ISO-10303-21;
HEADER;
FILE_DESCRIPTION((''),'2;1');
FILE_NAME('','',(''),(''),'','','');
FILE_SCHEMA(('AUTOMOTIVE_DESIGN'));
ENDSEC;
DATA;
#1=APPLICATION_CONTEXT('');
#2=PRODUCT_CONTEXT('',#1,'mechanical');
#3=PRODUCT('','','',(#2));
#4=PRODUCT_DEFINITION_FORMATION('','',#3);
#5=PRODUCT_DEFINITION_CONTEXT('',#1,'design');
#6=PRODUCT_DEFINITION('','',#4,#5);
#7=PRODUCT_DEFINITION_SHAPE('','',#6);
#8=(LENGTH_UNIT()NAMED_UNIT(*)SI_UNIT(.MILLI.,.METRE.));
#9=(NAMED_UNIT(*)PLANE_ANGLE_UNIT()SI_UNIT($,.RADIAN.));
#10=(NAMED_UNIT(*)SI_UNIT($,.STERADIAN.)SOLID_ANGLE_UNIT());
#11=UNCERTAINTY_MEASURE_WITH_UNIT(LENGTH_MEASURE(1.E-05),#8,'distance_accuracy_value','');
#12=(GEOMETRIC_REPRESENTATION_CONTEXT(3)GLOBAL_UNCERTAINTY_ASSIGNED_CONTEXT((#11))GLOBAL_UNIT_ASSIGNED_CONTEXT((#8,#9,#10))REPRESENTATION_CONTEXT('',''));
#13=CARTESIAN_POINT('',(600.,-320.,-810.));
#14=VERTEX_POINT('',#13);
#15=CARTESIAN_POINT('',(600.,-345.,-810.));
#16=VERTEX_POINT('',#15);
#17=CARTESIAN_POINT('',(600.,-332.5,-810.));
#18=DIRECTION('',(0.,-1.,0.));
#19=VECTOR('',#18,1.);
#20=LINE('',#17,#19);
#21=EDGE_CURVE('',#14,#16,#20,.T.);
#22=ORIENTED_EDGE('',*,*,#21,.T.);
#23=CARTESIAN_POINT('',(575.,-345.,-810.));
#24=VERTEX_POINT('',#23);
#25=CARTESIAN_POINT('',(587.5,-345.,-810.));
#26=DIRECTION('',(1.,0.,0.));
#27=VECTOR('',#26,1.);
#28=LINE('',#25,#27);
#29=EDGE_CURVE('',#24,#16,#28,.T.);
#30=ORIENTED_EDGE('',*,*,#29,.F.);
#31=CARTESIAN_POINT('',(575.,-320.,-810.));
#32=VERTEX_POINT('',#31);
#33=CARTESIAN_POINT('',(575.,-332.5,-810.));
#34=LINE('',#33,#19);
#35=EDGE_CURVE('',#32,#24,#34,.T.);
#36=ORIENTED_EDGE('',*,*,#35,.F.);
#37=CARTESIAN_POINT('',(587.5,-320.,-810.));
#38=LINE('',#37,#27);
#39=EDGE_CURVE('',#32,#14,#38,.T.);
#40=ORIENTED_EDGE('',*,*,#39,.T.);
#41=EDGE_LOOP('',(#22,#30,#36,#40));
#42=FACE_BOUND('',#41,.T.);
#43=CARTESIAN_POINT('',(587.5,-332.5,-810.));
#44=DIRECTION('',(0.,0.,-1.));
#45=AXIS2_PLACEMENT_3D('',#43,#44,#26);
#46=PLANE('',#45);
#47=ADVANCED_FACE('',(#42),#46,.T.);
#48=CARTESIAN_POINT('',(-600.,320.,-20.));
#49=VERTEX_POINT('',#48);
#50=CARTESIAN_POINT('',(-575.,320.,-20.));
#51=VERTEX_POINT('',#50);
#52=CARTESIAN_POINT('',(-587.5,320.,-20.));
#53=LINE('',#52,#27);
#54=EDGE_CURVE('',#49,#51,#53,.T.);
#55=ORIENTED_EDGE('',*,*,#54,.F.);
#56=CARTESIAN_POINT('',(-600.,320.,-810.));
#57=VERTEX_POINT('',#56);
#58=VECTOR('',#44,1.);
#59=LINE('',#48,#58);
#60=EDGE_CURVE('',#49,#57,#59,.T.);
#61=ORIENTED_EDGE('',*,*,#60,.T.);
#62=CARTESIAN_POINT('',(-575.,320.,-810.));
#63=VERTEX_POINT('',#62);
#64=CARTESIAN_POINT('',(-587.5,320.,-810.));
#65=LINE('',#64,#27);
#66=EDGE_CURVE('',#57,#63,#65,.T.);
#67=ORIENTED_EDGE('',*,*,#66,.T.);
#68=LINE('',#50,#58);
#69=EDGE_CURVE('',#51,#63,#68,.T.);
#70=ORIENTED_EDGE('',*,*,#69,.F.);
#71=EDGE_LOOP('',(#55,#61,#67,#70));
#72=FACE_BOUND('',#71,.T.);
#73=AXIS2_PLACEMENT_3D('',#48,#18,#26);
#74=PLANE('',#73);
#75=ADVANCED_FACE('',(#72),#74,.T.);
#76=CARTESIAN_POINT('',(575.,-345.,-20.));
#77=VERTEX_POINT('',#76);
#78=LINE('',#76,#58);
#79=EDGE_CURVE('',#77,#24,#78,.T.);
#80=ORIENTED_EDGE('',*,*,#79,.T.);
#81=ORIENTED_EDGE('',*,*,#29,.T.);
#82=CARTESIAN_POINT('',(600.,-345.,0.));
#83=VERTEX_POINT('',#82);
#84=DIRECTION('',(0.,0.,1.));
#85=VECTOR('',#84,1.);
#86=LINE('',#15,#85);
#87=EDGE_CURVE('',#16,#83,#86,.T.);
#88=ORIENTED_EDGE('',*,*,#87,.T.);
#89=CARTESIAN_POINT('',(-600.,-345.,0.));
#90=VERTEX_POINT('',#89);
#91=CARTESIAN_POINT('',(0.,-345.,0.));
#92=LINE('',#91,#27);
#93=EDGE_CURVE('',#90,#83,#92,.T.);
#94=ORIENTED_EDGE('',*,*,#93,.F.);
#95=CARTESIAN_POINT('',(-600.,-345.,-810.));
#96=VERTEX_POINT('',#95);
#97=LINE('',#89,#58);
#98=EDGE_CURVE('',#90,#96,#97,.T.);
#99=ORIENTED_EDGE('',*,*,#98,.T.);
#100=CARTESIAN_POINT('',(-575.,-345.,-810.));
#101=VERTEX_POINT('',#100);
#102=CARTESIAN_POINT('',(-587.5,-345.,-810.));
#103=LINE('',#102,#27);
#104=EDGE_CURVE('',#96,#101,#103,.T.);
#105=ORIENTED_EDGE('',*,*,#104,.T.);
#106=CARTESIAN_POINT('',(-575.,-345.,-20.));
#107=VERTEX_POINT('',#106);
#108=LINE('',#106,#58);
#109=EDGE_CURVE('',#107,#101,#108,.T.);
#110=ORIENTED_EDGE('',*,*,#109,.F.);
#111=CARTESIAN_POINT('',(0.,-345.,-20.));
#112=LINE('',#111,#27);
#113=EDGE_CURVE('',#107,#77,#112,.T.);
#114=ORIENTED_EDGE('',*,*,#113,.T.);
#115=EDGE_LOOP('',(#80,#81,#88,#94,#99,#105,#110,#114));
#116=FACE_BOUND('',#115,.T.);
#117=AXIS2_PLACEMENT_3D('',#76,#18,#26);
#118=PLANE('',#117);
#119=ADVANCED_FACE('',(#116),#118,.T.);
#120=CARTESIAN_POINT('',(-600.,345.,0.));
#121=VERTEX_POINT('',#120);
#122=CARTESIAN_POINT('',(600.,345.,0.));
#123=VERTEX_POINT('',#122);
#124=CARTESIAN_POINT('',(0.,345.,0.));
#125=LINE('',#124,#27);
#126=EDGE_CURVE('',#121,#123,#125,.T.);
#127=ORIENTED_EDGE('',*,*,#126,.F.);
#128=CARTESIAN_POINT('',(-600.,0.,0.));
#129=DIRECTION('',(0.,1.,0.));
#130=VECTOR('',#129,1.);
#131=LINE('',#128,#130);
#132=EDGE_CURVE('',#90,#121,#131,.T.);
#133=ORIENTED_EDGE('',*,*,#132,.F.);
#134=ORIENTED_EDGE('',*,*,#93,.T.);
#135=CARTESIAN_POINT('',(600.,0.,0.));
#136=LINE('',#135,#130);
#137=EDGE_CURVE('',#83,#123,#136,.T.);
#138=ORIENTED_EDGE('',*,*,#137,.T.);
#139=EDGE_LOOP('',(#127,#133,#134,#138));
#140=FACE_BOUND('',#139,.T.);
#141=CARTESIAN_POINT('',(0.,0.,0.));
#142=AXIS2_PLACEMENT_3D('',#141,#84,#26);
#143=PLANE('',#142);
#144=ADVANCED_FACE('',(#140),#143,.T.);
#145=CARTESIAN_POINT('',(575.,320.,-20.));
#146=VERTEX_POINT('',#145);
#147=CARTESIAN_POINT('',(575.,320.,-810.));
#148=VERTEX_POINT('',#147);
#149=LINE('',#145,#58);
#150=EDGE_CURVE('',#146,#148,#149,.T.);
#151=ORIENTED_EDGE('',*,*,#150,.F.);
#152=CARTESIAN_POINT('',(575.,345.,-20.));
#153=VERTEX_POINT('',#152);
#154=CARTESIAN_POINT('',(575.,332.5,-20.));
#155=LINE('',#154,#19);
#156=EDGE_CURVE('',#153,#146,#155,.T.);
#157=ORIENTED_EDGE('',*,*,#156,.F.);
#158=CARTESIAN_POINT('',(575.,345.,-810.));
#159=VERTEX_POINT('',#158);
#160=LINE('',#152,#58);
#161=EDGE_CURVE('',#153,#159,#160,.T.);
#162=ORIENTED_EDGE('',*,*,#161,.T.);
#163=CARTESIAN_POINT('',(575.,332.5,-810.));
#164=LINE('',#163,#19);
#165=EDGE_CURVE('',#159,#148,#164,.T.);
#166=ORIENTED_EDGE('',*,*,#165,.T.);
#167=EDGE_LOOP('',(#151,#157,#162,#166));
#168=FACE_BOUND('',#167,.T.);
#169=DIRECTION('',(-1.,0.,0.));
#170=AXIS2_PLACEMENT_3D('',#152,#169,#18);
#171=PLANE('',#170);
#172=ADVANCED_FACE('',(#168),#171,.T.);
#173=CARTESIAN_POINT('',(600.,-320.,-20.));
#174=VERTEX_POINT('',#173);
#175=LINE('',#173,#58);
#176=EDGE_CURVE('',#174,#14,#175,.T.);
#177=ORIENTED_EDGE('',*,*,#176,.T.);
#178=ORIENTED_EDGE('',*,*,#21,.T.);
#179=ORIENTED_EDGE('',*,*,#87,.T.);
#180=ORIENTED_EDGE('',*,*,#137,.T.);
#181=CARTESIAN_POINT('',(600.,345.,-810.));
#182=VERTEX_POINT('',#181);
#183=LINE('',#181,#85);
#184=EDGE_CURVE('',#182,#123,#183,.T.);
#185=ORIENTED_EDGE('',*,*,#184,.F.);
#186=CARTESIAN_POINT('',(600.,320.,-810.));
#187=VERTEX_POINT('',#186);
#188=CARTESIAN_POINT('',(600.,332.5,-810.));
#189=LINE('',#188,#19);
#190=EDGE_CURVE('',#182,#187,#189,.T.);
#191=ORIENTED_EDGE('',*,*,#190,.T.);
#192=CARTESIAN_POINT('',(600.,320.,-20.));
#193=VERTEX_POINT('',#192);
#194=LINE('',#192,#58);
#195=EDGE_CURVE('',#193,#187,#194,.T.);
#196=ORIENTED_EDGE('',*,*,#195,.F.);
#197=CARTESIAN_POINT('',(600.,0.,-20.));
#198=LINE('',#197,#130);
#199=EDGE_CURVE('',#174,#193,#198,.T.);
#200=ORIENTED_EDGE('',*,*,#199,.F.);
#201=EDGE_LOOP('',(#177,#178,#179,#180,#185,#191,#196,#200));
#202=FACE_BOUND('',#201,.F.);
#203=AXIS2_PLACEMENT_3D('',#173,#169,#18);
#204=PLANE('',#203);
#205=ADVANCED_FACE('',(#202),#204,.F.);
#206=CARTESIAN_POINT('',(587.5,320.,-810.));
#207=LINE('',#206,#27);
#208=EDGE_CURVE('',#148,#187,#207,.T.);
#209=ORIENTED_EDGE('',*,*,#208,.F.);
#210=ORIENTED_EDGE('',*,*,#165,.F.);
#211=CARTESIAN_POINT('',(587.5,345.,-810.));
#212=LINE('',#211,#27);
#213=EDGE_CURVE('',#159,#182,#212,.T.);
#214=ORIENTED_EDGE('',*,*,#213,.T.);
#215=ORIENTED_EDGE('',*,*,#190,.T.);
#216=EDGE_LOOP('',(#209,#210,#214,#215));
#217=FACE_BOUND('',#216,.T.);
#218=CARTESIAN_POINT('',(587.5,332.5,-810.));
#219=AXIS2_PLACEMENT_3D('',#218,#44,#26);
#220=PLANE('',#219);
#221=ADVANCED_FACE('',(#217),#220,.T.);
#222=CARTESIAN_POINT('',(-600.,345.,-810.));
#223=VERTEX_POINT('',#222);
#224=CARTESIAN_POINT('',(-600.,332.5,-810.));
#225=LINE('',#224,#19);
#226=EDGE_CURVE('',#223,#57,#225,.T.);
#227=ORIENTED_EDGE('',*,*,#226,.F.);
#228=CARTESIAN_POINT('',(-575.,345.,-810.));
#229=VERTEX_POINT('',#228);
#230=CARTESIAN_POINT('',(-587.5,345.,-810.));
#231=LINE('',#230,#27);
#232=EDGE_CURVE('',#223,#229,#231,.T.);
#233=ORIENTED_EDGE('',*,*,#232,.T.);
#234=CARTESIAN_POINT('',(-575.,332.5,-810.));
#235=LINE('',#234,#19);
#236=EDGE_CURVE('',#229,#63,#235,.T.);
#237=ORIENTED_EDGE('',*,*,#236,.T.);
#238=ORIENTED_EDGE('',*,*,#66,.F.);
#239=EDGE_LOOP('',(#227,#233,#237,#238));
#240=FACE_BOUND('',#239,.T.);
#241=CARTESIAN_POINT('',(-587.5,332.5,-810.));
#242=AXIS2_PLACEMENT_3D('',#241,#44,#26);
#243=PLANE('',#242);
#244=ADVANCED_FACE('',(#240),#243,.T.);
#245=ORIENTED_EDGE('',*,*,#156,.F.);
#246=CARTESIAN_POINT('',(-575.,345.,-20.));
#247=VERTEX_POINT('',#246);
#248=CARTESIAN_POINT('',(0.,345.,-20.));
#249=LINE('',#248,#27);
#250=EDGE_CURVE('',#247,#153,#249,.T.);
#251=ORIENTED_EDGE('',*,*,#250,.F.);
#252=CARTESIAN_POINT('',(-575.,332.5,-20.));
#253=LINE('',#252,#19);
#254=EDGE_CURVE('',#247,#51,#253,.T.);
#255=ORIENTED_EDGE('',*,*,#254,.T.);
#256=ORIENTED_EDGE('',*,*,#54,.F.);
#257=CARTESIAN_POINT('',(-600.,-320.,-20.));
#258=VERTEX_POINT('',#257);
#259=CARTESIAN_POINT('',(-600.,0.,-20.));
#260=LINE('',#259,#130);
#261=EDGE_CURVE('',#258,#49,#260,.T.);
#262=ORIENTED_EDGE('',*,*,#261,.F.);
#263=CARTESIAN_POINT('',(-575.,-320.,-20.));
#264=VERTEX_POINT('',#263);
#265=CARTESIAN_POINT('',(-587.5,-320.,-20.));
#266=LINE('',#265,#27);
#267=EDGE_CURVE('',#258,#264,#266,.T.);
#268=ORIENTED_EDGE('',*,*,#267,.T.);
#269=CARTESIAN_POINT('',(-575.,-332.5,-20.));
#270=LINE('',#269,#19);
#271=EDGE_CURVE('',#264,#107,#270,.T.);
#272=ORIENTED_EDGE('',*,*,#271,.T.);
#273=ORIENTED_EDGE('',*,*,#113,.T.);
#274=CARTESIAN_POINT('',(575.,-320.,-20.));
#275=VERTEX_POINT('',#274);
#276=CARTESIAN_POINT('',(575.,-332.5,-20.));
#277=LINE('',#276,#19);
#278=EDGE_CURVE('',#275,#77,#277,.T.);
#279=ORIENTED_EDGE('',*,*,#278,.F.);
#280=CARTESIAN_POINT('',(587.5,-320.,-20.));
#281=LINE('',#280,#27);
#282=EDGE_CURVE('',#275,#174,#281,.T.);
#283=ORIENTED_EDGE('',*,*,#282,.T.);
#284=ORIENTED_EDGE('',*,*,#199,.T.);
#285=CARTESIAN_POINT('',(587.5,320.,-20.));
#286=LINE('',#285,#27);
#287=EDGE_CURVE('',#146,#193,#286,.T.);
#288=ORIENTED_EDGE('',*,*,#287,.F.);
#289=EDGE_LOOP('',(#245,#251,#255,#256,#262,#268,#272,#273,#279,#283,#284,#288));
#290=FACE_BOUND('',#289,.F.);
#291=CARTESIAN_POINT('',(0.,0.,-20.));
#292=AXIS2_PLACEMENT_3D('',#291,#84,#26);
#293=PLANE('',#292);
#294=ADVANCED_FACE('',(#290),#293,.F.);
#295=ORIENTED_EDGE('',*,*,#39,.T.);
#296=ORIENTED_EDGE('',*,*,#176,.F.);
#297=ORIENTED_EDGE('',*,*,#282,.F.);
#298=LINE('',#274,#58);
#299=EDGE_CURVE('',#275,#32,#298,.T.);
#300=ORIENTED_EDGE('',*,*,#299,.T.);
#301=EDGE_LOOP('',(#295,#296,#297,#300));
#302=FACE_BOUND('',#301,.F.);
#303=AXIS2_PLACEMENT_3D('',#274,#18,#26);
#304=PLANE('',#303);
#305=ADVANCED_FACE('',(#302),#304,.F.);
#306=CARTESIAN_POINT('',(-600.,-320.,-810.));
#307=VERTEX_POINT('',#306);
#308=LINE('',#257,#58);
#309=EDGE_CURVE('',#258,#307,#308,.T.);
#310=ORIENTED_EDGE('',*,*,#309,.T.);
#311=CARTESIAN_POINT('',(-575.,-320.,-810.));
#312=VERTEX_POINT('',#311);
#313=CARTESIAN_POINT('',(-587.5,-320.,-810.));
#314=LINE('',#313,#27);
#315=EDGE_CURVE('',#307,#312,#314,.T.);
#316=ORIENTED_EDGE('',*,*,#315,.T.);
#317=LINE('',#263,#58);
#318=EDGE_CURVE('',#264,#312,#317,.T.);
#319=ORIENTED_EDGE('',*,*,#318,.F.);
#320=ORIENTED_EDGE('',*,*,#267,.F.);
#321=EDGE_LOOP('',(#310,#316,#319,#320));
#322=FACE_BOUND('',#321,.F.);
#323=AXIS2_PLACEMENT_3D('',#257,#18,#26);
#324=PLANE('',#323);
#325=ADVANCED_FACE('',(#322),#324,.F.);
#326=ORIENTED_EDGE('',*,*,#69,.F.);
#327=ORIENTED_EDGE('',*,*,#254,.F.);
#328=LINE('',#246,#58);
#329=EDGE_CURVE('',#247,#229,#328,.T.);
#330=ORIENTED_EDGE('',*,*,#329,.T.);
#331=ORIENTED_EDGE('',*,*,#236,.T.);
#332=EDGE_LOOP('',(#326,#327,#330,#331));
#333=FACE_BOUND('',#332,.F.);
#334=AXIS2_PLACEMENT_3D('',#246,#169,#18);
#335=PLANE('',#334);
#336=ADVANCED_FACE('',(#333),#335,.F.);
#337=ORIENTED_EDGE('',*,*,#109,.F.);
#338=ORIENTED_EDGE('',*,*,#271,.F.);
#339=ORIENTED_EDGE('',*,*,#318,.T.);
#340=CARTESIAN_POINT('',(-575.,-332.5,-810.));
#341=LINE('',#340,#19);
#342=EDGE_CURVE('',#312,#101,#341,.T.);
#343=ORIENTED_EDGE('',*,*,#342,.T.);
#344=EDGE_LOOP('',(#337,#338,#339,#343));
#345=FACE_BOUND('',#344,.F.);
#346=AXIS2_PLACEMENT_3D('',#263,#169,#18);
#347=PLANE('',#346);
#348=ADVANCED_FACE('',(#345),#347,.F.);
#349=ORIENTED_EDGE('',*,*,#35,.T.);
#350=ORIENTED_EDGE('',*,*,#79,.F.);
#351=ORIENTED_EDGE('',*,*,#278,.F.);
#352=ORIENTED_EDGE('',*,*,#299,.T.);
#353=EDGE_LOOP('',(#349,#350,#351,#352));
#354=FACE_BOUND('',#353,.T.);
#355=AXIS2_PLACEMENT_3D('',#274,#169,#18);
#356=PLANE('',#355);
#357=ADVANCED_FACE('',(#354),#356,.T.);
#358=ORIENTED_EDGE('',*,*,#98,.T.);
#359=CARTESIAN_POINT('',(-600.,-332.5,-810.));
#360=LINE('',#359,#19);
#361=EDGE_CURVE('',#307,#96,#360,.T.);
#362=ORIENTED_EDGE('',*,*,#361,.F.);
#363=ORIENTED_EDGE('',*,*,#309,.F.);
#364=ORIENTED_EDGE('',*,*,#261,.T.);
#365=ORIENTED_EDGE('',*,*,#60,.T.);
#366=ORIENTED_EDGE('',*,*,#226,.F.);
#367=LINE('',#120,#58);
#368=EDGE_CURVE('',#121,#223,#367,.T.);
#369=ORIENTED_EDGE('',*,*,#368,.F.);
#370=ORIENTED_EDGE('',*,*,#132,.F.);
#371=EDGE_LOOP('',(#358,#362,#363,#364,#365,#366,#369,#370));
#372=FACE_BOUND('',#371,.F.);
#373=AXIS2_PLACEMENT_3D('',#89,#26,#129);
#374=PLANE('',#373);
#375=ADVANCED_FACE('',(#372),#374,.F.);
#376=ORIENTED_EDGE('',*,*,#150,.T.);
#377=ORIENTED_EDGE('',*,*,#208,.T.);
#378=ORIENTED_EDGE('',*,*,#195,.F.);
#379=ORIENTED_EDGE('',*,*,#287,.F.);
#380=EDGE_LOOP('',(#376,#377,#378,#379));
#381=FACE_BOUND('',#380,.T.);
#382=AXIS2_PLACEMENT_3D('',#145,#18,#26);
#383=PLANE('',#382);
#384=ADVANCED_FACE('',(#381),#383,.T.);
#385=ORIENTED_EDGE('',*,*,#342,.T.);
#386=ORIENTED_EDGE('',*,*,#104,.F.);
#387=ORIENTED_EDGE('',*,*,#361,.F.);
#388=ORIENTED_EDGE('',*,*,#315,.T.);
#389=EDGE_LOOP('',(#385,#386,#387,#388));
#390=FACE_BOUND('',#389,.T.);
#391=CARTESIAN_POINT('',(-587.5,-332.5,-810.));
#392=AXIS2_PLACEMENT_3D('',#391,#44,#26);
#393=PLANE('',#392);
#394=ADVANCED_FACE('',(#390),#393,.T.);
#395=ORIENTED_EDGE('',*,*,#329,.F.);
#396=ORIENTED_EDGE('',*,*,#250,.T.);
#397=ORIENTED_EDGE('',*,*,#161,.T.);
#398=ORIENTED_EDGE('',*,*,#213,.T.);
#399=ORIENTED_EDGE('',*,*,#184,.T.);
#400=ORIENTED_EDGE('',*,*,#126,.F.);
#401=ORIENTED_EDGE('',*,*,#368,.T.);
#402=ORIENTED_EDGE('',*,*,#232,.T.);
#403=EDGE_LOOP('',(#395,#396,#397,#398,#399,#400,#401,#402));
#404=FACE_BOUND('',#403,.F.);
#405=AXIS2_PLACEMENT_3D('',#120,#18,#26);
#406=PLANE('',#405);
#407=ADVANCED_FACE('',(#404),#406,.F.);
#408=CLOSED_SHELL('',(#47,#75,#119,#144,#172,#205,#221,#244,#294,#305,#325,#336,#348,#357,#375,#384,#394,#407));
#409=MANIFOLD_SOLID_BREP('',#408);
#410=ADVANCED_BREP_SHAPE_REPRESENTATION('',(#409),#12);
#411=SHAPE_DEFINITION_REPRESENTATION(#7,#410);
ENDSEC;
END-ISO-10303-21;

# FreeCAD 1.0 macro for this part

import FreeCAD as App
import Part
import Sketcher
Q = App.Units.Quantity

doc = App.newDocument("Part")
body = doc.addObject("PartDesign::Body", "Body")

sketch1 = body.newObject("Sketcher::SketchObject", "Sketch")
sketch1.AttachmentSupport = (doc.getObject("XY_Plane"), [""])
sketch1.MapMode = "FlatFace"
sketch1.addGeometry(Part.LineSegment(App.Vector(-600, 345, 0), App.Vector(-600, -345, 0)), False)
sketch1.addGeometry(Part.LineSegment(App.Vector(-600, -345, 0), App.Vector(600, -345, 0)), False)
sketch1.addGeometry(Part.LineSegment(App.Vector(600, -345, 0), App.Vector(600, 345, 0)), False)
sketch1.addGeometry(Part.LineSegment(App.Vector(600, 345, 0), App.Vector(-600, 345, 0)), False)
sketch1.addConstraint(Sketcher.Constraint("Coincident", 0, 2, 1, 1))
sketch1.addConstraint(Sketcher.Constraint("Coincident", 1, 2, 2, 1))
sketch1.addConstraint(Sketcher.Constraint("Coincident", 2, 2, 3, 1))
sketch1.addConstraint(Sketcher.Constraint("Coincident", 3, 2, 0, 1))
sketch1.addConstraint(Sketcher.Constraint("Vertical", 0))
sketch1.addConstraint(Sketcher.Constraint("Horizontal", 1))
sketch1.addConstraint(Sketcher.Constraint("Vertical", 2))
sketch1.addConstraint(Sketcher.Constraint("Horizontal", 3))
sketch1.addConstraint(Sketcher.Constraint("Symmetric", 0, 2, 2, 2, -1, 1))
sketch1.addConstraint(Sketcher.Constraint("DistanceX", 1, 1, 1, 2, Q("1200 mm")))
sketch1.addConstraint(Sketcher.Constraint("DistanceY", 0, 2, 0, 1, Q("690 mm")))
pad1 = body.newObject("PartDesign::Pad", "Pad")
pad1.Profile = sketch1
pad1.Length = 20
pad1.Reversed = True

sketch2 = body.newObject("Sketcher::SketchObject", "Sketch001")
sketch2.AttachmentSupport = (doc.getObject("XY_Plane"), [""])
sketch2.MapMode = "FlatFace"
sketch2.AttachmentOffset = App.Placement(App.Vector(0, 0, -20), App.Rotation())
sketch2.addGeometry(Part.LineSegment(App.Vector(575, -345, 0), App.Vector(575, -320, 0)), False)
sketch2.addGeometry(Part.LineSegment(App.Vector(575, -320, 0), App.Vector(600, -320, 0)), False)
sketch2.addGeometry(Part.LineSegment(App.Vector(600, -320, 0), App.Vector(600, -345, 0)), False)
sketch2.addGeometry(Part.LineSegment(App.Vector(600, -345, 0), App.Vector(575, -345, 0)), False)
sketch2.addGeometry(Part.LineSegment(App.Vector(-600, -345, 0), App.Vector(-600, -320, 0)), False)
sketch2.addGeometry(Part.LineSegment(App.Vector(-600, -320, 0), App.Vector(-575, -320, 0)), False)
sketch2.addGeometry(Part.LineSegment(App.Vector(-575, -320, 0), App.Vector(-575, -345, 0)), False)
sketch2.addGeometry(Part.LineSegment(App.Vector(-575, -345, 0), App.Vector(-600, -345, 0)), False)
sketch2.addGeometry(Part.LineSegment(App.Vector(575, 320, 0), App.Vector(575, 345, 0)), False)
sketch2.addGeometry(Part.LineSegment(App.Vector(575, 345, 0), App.Vector(600, 345, 0)), False)
sketch2.addGeometry(Part.LineSegment(App.Vector(600, 345, 0), App.Vector(600, 320, 0)), False)
sketch2.addGeometry(Part.LineSegment(App.Vector(600, 320, 0), App.Vector(575, 320, 0)), False)
sketch2.addGeometry(Part.LineSegment(App.Vector(-600, 320, 0), App.Vector(-600, 345, 0)), False)
sketch2.addGeometry(Part.LineSegment(App.Vector(-600, 345, 0), App.Vector(-575, 345, 0)), False)
sketch2.addGeometry(Part.LineSegment(App.Vector(-575, 345, 0), App.Vector(-575, 320, 0)), False)
sketch2.addGeometry(Part.LineSegment(App.Vector(-575, 320, 0), App.Vector(-600, 320, 0)), False)
sketch2.addConstraint(Sketcher.Constraint("Coincident", 0, 2, 1, 1))
sketch2.addConstraint(Sketcher.Constraint("Coincident", 1, 2, 2, 1))
sketch2.addConstraint(Sketcher.Constraint("Coincident", 2, 2, 3, 1))
sketch2.addConstraint(Sketcher.Constraint("Coincident", 3, 2, 0, 1))
sketch2.addConstraint(Sketcher.Constraint("Coincident", 4, 2, 5, 1))
sketch2.addConstraint(Sketcher.Constraint("Coincident", 5, 2, 6, 1))
sketch2.addConstraint(Sketcher.Constraint("Coincident", 6, 2, 7, 1))
sketch2.addConstraint(Sketcher.Constraint("Coincident", 7, 2, 4, 1))
sketch2.addConstraint(Sketcher.Constraint("Coincident", 8, 2, 9, 1))
sketch2.addConstraint(Sketcher.Constraint("Coincident", 9, 2, 10, 1))
sketch2.addConstraint(Sketcher.Constraint("Coincident", 10, 2, 11, 1))
sketch2.addConstraint(Sketcher.Constraint("Coincident", 11, 2, 8, 1))
sketch2.addConstraint(Sketcher.Constraint("Coincident", 12, 2, 13, 1))
sketch2.addConstraint(Sketcher.Constraint("Coincident", 13, 2, 14, 1))
sketch2.addConstraint(Sketcher.Constraint("Coincident", 14, 2, 15, 1))
sketch2.addConstraint(Sketcher.Constraint("Coincident", 15, 2, 12, 1))
sketch2.addConstraint(Sketcher.Constraint("Vertical", 0))
sketch2.addConstraint(Sketcher.Constraint("Horizontal", 1))
sketch2.addConstraint(Sketcher.Constraint("Vertical", 2))
sketch2.addConstraint(Sketcher.Constraint("Horizontal", 3))
sketch2.addConstraint(Sketcher.Constraint("Vertical", 4))
sketch2.addConstraint(Sketcher.Constraint("Horizontal", 5))
sketch2.addConstraint(Sketcher.Constraint("Vertical", 6))
sketch2.addConstraint(Sketcher.Constraint("Horizontal", 7))
sketch2.addConstraint(Sketcher.Constraint("Vertical", 8))
sketch2.addConstraint(Sketcher.Constraint("Horizontal", 9))
sketch2.addConstraint(Sketcher.Constraint("Vertical", 10))
sketch2.addConstraint(Sketcher.Constraint("Horizontal", 11))
sketch2.addConstraint(Sketcher.Constraint("Vertical", 12))
sketch2.addConstraint(Sketcher.Constraint("Horizontal", 13))
sketch2.addConstraint(Sketcher.Constraint("Vertical", 14))
sketch2.addConstraint(Sketcher.Constraint("Horizontal", 15))
sketch2.addConstraint(Sketcher.Constraint("Symmetric", 6, 2, 8, 2, -1, 1))
sketch2.addConstraint(Sketcher.Constraint("Symmetric", 4, 2, 10, 2, -1, 1))
sketch2.addConstraint(Sketcher.Constraint("Symmetric", 2, 2, 12, 2, -1, 1))
sketch2.addConstraint(Sketcher.Constraint("Symmetric", 0, 2, 14, 2, -1, 1))
sketch2.addConstraint(Sketcher.Constraint("Symmetric", 1, 2, 4, 2, -2))
sketch2.addConstraint(Sketcher.Constraint("Symmetric", 3, 2, 6, 2, -2))
sketch2.addConstraint(Sketcher.Constraint("Equal", 15, 0))
sketch2.addConstraint(Sketcher.Constraint("DistanceX", 1, 1, 1, 2, Q("25 mm")))
sketch2.addConstraint(Sketcher.Constraint("DistanceX", -1, 1, 0, 2, Q("575 mm")))
sketch2.addConstraint(Sketcher.Constraint("DistanceY", 0, 2, -1, 1, Q("320 mm")))
pad2 = body.newObject("PartDesign::Pad", "Pad001")
pad2.Profile = sketch2
pad2.Length = 790
pad2.Reversed = True

doc.recompute()
